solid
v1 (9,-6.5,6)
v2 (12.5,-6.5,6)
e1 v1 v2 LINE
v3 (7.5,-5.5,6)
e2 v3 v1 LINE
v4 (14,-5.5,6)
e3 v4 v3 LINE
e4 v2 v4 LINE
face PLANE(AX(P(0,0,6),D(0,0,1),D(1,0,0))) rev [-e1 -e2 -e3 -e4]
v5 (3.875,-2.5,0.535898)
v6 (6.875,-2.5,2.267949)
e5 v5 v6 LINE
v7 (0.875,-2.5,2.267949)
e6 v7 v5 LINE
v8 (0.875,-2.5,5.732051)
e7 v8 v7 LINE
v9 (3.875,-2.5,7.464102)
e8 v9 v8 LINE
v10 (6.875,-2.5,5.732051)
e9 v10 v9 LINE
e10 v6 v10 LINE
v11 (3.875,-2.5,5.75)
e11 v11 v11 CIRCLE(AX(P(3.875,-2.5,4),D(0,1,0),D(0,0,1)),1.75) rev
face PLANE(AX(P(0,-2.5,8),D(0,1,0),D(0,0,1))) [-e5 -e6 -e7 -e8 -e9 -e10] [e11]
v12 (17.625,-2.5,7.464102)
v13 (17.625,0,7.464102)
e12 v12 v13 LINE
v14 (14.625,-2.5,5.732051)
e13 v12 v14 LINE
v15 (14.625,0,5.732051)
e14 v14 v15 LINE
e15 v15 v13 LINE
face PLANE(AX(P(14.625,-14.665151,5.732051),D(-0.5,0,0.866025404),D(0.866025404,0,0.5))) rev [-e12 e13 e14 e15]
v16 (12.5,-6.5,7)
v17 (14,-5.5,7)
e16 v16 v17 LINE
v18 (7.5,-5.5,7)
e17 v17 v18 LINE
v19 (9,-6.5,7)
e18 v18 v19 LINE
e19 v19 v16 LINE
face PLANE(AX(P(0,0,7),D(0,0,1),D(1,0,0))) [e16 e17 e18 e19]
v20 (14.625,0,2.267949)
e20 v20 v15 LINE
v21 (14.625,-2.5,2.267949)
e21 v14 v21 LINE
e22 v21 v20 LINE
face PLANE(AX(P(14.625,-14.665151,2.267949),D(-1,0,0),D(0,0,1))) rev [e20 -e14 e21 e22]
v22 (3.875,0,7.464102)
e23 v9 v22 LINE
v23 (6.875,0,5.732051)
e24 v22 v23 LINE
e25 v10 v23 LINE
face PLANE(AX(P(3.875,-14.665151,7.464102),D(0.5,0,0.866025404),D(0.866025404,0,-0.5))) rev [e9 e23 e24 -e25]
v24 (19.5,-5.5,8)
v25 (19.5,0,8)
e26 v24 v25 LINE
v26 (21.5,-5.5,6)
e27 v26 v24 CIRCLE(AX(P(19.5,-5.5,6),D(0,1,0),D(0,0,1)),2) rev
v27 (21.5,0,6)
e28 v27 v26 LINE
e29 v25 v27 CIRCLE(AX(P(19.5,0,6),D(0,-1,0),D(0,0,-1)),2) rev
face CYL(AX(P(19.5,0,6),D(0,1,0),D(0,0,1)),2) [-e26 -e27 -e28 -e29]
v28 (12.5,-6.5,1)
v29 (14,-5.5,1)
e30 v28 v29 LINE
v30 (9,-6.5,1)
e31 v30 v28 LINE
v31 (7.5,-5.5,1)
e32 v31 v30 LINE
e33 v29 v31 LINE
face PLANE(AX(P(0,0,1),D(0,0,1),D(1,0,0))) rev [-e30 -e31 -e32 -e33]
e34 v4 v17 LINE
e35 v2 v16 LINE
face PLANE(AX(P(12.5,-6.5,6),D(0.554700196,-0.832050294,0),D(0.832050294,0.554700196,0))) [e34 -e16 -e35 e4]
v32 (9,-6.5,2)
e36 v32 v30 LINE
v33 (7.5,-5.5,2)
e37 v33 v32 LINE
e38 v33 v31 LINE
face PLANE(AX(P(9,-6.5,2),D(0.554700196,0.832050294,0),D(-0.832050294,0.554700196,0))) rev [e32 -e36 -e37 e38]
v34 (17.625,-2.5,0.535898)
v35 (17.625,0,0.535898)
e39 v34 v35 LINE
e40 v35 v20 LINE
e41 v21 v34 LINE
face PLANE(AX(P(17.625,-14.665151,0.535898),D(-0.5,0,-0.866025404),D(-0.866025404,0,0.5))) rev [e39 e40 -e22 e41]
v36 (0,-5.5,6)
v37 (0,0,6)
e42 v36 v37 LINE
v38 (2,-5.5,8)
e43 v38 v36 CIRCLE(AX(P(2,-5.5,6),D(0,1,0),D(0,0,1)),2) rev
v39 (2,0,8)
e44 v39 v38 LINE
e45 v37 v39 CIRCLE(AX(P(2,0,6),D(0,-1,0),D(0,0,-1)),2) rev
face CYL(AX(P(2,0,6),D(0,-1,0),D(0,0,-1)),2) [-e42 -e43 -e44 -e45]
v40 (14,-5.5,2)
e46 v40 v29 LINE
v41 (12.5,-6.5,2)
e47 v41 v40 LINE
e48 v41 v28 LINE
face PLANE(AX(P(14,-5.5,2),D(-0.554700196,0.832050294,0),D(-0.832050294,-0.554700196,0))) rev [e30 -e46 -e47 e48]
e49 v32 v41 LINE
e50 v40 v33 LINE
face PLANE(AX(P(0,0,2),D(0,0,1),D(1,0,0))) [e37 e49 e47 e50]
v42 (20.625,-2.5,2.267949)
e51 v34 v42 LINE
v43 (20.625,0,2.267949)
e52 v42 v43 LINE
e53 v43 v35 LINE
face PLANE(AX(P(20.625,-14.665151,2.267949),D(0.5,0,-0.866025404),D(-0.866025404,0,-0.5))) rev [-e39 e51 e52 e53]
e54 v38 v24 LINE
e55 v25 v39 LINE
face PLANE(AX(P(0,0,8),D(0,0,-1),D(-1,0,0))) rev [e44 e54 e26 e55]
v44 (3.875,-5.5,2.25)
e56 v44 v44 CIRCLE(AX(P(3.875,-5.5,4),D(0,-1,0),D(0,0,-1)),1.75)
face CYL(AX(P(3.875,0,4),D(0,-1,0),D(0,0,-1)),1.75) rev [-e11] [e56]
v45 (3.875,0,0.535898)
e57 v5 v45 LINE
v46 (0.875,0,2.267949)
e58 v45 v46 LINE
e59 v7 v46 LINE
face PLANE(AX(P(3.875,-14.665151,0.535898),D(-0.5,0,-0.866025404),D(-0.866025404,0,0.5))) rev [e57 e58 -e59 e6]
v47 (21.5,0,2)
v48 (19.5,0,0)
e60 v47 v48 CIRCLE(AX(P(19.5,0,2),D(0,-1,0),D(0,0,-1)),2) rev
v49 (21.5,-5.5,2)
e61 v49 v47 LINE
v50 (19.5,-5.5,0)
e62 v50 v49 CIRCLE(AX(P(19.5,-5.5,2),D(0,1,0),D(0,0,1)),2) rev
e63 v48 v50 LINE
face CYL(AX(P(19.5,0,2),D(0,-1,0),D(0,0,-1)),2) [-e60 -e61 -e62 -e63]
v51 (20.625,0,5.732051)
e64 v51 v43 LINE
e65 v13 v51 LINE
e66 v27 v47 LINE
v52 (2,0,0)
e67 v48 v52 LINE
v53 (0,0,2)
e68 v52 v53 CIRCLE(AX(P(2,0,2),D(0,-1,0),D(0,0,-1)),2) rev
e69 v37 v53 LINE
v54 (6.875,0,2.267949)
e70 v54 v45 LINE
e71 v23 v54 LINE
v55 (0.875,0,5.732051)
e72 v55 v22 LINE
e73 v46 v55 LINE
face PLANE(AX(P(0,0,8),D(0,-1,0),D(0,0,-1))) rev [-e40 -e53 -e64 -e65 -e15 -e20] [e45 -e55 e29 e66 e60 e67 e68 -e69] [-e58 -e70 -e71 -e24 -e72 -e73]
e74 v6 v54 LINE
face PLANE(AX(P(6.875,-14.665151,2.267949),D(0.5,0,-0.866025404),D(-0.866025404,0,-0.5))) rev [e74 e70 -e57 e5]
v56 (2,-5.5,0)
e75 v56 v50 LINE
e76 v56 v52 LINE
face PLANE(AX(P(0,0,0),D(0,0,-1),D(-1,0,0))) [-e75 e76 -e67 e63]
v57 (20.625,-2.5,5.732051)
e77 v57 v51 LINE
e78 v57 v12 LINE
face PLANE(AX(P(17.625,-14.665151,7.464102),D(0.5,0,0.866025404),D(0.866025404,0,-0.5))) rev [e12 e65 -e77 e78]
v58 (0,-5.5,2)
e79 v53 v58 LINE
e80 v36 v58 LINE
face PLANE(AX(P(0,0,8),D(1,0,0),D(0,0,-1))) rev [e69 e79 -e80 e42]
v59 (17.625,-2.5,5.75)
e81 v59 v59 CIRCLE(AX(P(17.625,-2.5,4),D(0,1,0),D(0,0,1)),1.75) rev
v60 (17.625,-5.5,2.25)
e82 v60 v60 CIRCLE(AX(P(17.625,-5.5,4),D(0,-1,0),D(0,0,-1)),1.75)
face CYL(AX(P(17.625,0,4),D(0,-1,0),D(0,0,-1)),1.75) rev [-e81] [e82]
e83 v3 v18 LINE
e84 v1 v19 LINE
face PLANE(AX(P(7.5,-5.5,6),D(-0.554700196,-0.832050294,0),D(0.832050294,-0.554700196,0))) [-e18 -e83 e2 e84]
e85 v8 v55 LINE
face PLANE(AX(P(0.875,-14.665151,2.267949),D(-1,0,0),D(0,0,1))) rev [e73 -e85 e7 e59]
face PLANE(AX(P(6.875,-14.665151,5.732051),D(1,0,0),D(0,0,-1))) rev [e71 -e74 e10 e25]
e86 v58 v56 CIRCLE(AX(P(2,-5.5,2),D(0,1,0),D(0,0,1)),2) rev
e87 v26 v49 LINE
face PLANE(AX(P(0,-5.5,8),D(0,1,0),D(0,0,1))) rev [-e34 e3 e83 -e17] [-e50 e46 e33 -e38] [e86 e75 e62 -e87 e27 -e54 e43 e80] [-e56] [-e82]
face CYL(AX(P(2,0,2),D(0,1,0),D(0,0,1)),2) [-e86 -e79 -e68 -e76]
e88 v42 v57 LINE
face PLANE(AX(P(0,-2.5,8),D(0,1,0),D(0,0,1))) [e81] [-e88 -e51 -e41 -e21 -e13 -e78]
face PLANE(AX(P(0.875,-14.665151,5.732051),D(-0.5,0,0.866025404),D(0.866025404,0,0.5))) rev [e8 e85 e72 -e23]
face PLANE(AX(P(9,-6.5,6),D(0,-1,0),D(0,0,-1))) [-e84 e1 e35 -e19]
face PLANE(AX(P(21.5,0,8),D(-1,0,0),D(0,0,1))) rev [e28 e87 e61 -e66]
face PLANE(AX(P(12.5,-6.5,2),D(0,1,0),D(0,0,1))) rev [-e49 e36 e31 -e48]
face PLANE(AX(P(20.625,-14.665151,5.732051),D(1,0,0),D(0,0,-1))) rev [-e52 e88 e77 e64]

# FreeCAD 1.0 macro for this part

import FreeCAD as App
import Part
import Sketcher
from FreeCAD import Vector
Q = App.Units.Quantity


def edges_at(feature, points):
    """Names of the edges that pass closest to the given points."""
    edges = feature.Shape.Edges
    near = lambda p: min(range(len(edges)), key=lambda i: edges[i].distToShape(Part.Vertex(*p))[0])
    return sorted({f"Edge{near(p) + 1}" for p in points})

doc = App.newDocument("Part")
body = doc.addObject("PartDesign::Body", "Body")

# Sketch on XY plane
sketch1 = body.newObject("Sketcher::SketchObject", "Sketch")
sketch1.AttachmentSupport = (doc.getObject("XY_Plane"), [""])
sketch1.MapMode = "FlatFace"
sketch1.addGeometry([
    Part.LineSegment(Vector(0, 0, 0), Vector(0, -5.5, 0)),
    Part.LineSegment(Vector(0, -5.5, 0), Vector(21.5, -5.5, 0)),
    Part.LineSegment(Vector(21.5, -5.5, 0), Vector(21.5, 0, 0)),
    Part.LineSegment(Vector(21.5, 0, 0), Vector(0, 0, 0)),
], False)
sketch1.addConstraint([
    Sketcher.Constraint("Coincident", 0, 2, 1, 1),
    Sketcher.Constraint("Coincident", 1, 2, 2, 1),
    Sketcher.Constraint("Coincident", 2, 2, 3, 1),
    Sketcher.Constraint("Coincident", 3, 2, 0, 1),
    Sketcher.Constraint("Vertical", 0),
    Sketcher.Constraint("Horizontal", 1),
    Sketcher.Constraint("Vertical", 2),
    Sketcher.Constraint("Horizontal", 3),
    Sketcher.Constraint("Coincident", 3, 2, -1, 1),
    Sketcher.Constraint("DistanceX", 1, 1, 1, 2, 21.5),
    Sketcher.Constraint("DistanceY", 0, 2, 0, 1, 5.5),
])
pad1 = body.newObject("PartDesign::Pad", "Pad")
pad1.Profile = sketch1
pad1.Length = 8

# Sketch on XZ plane
sketch2 = body.newObject("Sketcher::SketchObject", "Sketch001")
sketch2.AttachmentSupport = (doc.getObject("XZ_Plane"), [""])
sketch2.MapMode = "FlatFace"
sketch2.AttachmentOffset = App.Placement(Vector(0, 0, 5.5), App.Rotation())
sketch2.addGeometry([
    Part.Circle(Vector(3.875, 4, 0), Vector(0, 0, 1), 1.75),
    Part.Circle(Vector(17.625, 4, 0), Vector(0, 0, 1), 1.75),
], False)
sketch2.addConstraint([
    Sketcher.Constraint("Equal", 0, 1),
    Sketcher.Constraint("Horizontal", 0, 3, 1, 3),
    Sketcher.Constraint("Diameter", 0, 3.5),
    Sketcher.Constraint("DistanceY", -1, 1, 0, 3, 4.0),
    Sketcher.Constraint("DistanceX", 0, 3, 1, 3, 13.75),
    Sketcher.Constraint("DistanceX", -1, 1, 0, 3, 3.875),
])
pocket1 = body.newObject("PartDesign::Pocket", "Pocket")
pocket1.Profile = sketch2
pocket1.Type = "ThroughAll"

# Sketch on XZ plane
sketch3 = body.newObject("Sketcher::SketchObject", "Sketch002")
sketch3.AttachmentSupport = (doc.getObject("XZ_Plane"), [""])
sketch3.MapMode = "FlatFace"
sketch3.addGeometry([
    Part.LineSegment(Vector(6.875, 5.732051, 0), Vector(6.875, 2.267949, 0)),  # 0
    Part.LineSegment(Vector(6.875, 2.267949, 0), Vector(3.875, 0.535898, 0)),  # 1
    Part.LineSegment(Vector(3.875, 0.535898, 0), Vector(0.875, 2.267949, 0)),  # 2
    Part.LineSegment(Vector(0.875, 2.267949, 0), Vector(0.875, 5.732051, 0)),  # 3
    Part.LineSegment(Vector(0.875, 5.732051, 0), Vector(3.875, 7.464102, 0)),  # 4
    Part.LineSegment(Vector(3.875, 7.464102, 0), Vector(6.875, 5.732051, 0)),  # 5
    Part.LineSegment(Vector(20.625, 2.267949, 0), Vector(17.625, 0.535898, 0)),  # 6
    Part.LineSegment(Vector(17.625, 0.535898, 0), Vector(14.625, 2.267949, 0)),  # 7
    Part.LineSegment(Vector(14.625, 2.267949, 0), Vector(14.625, 5.732051, 0)),  # 8
    Part.LineSegment(Vector(14.625, 5.732051, 0), Vector(17.625, 7.464102, 0)),  # 9
    Part.LineSegment(Vector(17.625, 7.464102, 0), Vector(20.625, 5.732051, 0)),  # 10
    Part.LineSegment(Vector(20.625, 5.732051, 0), Vector(20.625, 2.267949, 0)),  # 11
], False)
sketch3.addConstraint([
    Sketcher.Constraint("Coincident", 0, 2, 1, 1),
    Sketcher.Constraint("Coincident", 1, 2, 2, 1),
    Sketcher.Constraint("Coincident", 2, 2, 3, 1),
    Sketcher.Constraint("Coincident", 3, 2, 4, 1),
    Sketcher.Constraint("Coincident", 4, 2, 5, 1),
    Sketcher.Constraint("Coincident", 5, 2, 0, 1),
    Sketcher.Constraint("Coincident", 6, 2, 7, 1),
    Sketcher.Constraint("Coincident", 7, 2, 8, 1),
    Sketcher.Constraint("Coincident", 8, 2, 9, 1),
    Sketcher.Constraint("Coincident", 9, 2, 10, 1),
    Sketcher.Constraint("Coincident", 10, 2, 11, 1),
    Sketcher.Constraint("Coincident", 11, 2, 6, 1),
    Sketcher.Constraint("Vertical", 0),
    Sketcher.Constraint("Vertical", 3),
    Sketcher.Constraint("Vertical", 8),
    Sketcher.Constraint("Vertical", 11),
    Sketcher.Constraint("Parallel", 1, 4),
    Sketcher.Constraint("Parallel", 2, 5),
    Sketcher.Constraint("Parallel", 4, 6),
    Sketcher.Constraint("Parallel", 5, 7),
    Sketcher.Constraint("Parallel", 6, 9),
    Sketcher.Constraint("Parallel", 7, 10),
    Sketcher.Constraint("Horizontal", 0, 2, 2, 2),
    Sketcher.Constraint("Horizontal", 3, 2, 5, 2),
    Sketcher.Constraint("Horizontal", 1, 2, 6, 2),
    Sketcher.Constraint("Horizontal", 2, 2, 7, 2),
    Sketcher.Constraint("Horizontal", 5, 2, 8, 2),
    Sketcher.Constraint("Horizontal", 4, 2, 9, 2),
    Sketcher.Constraint("Horizontal", 8, 2, 10, 2),
    Sketcher.Constraint("Vertical", 1, 2, 4, 2),
    Sketcher.Constraint("Angle", 1, Q("-150 deg")),
    Sketcher.Constraint("DistanceX", 1, 2, 0, 2, 3.0),
    Sketcher.Constraint("DistanceX", 0, 2, 6, 2, 10.75),
    Sketcher.Constraint("DistanceY", 0, 2, 0, 1, 3.464102),
    Sketcher.Constraint("DistanceX", -1, 1, 0, 2, 6.875),
    Sketcher.Constraint("DistanceY", -1, 1, 1, 2, 0.535898),
])
pocket2 = body.newObject("PartDesign::Pocket", "Pocket001")
pocket2.Profile = sketch3
pocket2.Length = 2.5
pocket2.Reversed = True

# Sketch on XY plane
sketch4 = body.newObject("Sketcher::SketchObject", "Sketch003")
sketch4.AttachmentSupport = (doc.getObject("XY_Plane"), [""])
sketch4.MapMode = "FlatFace"
sketch4.AttachmentOffset = App.Placement(Vector(0, 0, 1), App.Rotation())
sketch4.addGeometry([
    Part.LineSegment(Vector(14, -5.5, 0), Vector(7.5, -5.5, 0)),
    Part.LineSegment(Vector(7.5, -5.5, 0), Vector(9, -6.5, 0)),
    Part.LineSegment(Vector(9, -6.5, 0), Vector(12.5, -6.5, 0)),
    Part.LineSegment(Vector(12.5, -6.5, 0), Vector(14, -5.5, 0)),
], False)
sketch4.addConstraint([
    Sketcher.Constraint("Coincident", 0, 2, 1, 1),
    Sketcher.Constraint("Coincident", 1, 2, 2, 1),
    Sketcher.Constraint("Coincident", 2, 2, 3, 1),
    Sketcher.Constraint("Coincident", 3, 2, 0, 1),
    Sketcher.Constraint("Horizontal", 0),
    Sketcher.Constraint("Horizontal", 2),
    Sketcher.Constraint("Equal", 1, 3),
    Sketcher.Constraint("DistanceX", 0, 2, 0, 1, 6.5),
    Sketcher.Constraint("DistanceX", 2, 1, 2, 2, 3.5),
    Sketcher.Constraint("DistanceX", -1, 1, 1, 2, 9.0),
    Sketcher.Constraint("DistanceY", 1, 2, 0, 2, 1.0),
    Sketcher.Constraint("DistanceY", 0, 2, -1, 1, 5.5),
])
pad2 = body.newObject("PartDesign::Pad", "Pad001")
pad2.Profile = sketch4
pad2.Length = 1

# Sketch on XY plane
sketch5 = body.newObject("Sketcher::SketchObject", "Sketch004")
sketch5.AttachmentSupport = (doc.getObject("XY_Plane"), [""])
sketch5.MapMode = "FlatFace"
sketch5.AttachmentOffset = App.Placement(Vector(0, 0, 7), App.Rotation())
sketch5.addGeometry([
    Part.LineSegment(Vector(7.5, -5.5, 0), Vector(9, -6.5, 0)),
    Part.LineSegment(Vector(9, -6.5, 0), Vector(12.5, -6.5, 0)),
    Part.LineSegment(Vector(12.5, -6.5, 0), Vector(14, -5.5, 0)),
    Part.LineSegment(Vector(14, -5.5, 0), Vector(7.5, -5.5, 0)),
], False)
sketch5.addConstraint([
    Sketcher.Constraint("Coincident", 0, 2, 1, 1),
    Sketcher.Constraint("Coincident", 1, 2, 2, 1),
    Sketcher.Constraint("Coincident", 2, 2, 3, 1),
    Sketcher.Constraint("Coincident", 3, 2, 0, 1),
    Sketcher.Constraint("Horizontal", 1),
    Sketcher.Constraint("Horizontal", 3),
    Sketcher.Constraint("Equal", 0, 2),
    Sketcher.Constraint("DistanceX", 1, 1, 1, 2, 3.5),
    Sketcher.Constraint("DistanceX", 3, 2, 3, 1, 6.5),
    Sketcher.Constraint("DistanceX", -1, 1, 0, 2, 9.0),
    Sketcher.Constraint("DistanceY", 1, 2, 2, 2, 1.0),
    Sketcher.Constraint("DistanceY", 0, 2, -1, 1, 6.5),
])
pad3 = body.newObject("PartDesign::Pad", "Pad002")
pad3.Profile = sketch5
pad3.Length = 1
pad3.Reversed = True
doc.recompute()

fillet = body.newObject("PartDesign::Fillet", "Fillet")
fillet.Base = (pad3, edges_at(pad3, [
    (21.5, -2.75, 8),
    (21.5, -2.75, 0),
    (0, -2.75, 0),
    (0, -2.75, 8),
]))
fillet.Radius = 2

doc.recompute()
